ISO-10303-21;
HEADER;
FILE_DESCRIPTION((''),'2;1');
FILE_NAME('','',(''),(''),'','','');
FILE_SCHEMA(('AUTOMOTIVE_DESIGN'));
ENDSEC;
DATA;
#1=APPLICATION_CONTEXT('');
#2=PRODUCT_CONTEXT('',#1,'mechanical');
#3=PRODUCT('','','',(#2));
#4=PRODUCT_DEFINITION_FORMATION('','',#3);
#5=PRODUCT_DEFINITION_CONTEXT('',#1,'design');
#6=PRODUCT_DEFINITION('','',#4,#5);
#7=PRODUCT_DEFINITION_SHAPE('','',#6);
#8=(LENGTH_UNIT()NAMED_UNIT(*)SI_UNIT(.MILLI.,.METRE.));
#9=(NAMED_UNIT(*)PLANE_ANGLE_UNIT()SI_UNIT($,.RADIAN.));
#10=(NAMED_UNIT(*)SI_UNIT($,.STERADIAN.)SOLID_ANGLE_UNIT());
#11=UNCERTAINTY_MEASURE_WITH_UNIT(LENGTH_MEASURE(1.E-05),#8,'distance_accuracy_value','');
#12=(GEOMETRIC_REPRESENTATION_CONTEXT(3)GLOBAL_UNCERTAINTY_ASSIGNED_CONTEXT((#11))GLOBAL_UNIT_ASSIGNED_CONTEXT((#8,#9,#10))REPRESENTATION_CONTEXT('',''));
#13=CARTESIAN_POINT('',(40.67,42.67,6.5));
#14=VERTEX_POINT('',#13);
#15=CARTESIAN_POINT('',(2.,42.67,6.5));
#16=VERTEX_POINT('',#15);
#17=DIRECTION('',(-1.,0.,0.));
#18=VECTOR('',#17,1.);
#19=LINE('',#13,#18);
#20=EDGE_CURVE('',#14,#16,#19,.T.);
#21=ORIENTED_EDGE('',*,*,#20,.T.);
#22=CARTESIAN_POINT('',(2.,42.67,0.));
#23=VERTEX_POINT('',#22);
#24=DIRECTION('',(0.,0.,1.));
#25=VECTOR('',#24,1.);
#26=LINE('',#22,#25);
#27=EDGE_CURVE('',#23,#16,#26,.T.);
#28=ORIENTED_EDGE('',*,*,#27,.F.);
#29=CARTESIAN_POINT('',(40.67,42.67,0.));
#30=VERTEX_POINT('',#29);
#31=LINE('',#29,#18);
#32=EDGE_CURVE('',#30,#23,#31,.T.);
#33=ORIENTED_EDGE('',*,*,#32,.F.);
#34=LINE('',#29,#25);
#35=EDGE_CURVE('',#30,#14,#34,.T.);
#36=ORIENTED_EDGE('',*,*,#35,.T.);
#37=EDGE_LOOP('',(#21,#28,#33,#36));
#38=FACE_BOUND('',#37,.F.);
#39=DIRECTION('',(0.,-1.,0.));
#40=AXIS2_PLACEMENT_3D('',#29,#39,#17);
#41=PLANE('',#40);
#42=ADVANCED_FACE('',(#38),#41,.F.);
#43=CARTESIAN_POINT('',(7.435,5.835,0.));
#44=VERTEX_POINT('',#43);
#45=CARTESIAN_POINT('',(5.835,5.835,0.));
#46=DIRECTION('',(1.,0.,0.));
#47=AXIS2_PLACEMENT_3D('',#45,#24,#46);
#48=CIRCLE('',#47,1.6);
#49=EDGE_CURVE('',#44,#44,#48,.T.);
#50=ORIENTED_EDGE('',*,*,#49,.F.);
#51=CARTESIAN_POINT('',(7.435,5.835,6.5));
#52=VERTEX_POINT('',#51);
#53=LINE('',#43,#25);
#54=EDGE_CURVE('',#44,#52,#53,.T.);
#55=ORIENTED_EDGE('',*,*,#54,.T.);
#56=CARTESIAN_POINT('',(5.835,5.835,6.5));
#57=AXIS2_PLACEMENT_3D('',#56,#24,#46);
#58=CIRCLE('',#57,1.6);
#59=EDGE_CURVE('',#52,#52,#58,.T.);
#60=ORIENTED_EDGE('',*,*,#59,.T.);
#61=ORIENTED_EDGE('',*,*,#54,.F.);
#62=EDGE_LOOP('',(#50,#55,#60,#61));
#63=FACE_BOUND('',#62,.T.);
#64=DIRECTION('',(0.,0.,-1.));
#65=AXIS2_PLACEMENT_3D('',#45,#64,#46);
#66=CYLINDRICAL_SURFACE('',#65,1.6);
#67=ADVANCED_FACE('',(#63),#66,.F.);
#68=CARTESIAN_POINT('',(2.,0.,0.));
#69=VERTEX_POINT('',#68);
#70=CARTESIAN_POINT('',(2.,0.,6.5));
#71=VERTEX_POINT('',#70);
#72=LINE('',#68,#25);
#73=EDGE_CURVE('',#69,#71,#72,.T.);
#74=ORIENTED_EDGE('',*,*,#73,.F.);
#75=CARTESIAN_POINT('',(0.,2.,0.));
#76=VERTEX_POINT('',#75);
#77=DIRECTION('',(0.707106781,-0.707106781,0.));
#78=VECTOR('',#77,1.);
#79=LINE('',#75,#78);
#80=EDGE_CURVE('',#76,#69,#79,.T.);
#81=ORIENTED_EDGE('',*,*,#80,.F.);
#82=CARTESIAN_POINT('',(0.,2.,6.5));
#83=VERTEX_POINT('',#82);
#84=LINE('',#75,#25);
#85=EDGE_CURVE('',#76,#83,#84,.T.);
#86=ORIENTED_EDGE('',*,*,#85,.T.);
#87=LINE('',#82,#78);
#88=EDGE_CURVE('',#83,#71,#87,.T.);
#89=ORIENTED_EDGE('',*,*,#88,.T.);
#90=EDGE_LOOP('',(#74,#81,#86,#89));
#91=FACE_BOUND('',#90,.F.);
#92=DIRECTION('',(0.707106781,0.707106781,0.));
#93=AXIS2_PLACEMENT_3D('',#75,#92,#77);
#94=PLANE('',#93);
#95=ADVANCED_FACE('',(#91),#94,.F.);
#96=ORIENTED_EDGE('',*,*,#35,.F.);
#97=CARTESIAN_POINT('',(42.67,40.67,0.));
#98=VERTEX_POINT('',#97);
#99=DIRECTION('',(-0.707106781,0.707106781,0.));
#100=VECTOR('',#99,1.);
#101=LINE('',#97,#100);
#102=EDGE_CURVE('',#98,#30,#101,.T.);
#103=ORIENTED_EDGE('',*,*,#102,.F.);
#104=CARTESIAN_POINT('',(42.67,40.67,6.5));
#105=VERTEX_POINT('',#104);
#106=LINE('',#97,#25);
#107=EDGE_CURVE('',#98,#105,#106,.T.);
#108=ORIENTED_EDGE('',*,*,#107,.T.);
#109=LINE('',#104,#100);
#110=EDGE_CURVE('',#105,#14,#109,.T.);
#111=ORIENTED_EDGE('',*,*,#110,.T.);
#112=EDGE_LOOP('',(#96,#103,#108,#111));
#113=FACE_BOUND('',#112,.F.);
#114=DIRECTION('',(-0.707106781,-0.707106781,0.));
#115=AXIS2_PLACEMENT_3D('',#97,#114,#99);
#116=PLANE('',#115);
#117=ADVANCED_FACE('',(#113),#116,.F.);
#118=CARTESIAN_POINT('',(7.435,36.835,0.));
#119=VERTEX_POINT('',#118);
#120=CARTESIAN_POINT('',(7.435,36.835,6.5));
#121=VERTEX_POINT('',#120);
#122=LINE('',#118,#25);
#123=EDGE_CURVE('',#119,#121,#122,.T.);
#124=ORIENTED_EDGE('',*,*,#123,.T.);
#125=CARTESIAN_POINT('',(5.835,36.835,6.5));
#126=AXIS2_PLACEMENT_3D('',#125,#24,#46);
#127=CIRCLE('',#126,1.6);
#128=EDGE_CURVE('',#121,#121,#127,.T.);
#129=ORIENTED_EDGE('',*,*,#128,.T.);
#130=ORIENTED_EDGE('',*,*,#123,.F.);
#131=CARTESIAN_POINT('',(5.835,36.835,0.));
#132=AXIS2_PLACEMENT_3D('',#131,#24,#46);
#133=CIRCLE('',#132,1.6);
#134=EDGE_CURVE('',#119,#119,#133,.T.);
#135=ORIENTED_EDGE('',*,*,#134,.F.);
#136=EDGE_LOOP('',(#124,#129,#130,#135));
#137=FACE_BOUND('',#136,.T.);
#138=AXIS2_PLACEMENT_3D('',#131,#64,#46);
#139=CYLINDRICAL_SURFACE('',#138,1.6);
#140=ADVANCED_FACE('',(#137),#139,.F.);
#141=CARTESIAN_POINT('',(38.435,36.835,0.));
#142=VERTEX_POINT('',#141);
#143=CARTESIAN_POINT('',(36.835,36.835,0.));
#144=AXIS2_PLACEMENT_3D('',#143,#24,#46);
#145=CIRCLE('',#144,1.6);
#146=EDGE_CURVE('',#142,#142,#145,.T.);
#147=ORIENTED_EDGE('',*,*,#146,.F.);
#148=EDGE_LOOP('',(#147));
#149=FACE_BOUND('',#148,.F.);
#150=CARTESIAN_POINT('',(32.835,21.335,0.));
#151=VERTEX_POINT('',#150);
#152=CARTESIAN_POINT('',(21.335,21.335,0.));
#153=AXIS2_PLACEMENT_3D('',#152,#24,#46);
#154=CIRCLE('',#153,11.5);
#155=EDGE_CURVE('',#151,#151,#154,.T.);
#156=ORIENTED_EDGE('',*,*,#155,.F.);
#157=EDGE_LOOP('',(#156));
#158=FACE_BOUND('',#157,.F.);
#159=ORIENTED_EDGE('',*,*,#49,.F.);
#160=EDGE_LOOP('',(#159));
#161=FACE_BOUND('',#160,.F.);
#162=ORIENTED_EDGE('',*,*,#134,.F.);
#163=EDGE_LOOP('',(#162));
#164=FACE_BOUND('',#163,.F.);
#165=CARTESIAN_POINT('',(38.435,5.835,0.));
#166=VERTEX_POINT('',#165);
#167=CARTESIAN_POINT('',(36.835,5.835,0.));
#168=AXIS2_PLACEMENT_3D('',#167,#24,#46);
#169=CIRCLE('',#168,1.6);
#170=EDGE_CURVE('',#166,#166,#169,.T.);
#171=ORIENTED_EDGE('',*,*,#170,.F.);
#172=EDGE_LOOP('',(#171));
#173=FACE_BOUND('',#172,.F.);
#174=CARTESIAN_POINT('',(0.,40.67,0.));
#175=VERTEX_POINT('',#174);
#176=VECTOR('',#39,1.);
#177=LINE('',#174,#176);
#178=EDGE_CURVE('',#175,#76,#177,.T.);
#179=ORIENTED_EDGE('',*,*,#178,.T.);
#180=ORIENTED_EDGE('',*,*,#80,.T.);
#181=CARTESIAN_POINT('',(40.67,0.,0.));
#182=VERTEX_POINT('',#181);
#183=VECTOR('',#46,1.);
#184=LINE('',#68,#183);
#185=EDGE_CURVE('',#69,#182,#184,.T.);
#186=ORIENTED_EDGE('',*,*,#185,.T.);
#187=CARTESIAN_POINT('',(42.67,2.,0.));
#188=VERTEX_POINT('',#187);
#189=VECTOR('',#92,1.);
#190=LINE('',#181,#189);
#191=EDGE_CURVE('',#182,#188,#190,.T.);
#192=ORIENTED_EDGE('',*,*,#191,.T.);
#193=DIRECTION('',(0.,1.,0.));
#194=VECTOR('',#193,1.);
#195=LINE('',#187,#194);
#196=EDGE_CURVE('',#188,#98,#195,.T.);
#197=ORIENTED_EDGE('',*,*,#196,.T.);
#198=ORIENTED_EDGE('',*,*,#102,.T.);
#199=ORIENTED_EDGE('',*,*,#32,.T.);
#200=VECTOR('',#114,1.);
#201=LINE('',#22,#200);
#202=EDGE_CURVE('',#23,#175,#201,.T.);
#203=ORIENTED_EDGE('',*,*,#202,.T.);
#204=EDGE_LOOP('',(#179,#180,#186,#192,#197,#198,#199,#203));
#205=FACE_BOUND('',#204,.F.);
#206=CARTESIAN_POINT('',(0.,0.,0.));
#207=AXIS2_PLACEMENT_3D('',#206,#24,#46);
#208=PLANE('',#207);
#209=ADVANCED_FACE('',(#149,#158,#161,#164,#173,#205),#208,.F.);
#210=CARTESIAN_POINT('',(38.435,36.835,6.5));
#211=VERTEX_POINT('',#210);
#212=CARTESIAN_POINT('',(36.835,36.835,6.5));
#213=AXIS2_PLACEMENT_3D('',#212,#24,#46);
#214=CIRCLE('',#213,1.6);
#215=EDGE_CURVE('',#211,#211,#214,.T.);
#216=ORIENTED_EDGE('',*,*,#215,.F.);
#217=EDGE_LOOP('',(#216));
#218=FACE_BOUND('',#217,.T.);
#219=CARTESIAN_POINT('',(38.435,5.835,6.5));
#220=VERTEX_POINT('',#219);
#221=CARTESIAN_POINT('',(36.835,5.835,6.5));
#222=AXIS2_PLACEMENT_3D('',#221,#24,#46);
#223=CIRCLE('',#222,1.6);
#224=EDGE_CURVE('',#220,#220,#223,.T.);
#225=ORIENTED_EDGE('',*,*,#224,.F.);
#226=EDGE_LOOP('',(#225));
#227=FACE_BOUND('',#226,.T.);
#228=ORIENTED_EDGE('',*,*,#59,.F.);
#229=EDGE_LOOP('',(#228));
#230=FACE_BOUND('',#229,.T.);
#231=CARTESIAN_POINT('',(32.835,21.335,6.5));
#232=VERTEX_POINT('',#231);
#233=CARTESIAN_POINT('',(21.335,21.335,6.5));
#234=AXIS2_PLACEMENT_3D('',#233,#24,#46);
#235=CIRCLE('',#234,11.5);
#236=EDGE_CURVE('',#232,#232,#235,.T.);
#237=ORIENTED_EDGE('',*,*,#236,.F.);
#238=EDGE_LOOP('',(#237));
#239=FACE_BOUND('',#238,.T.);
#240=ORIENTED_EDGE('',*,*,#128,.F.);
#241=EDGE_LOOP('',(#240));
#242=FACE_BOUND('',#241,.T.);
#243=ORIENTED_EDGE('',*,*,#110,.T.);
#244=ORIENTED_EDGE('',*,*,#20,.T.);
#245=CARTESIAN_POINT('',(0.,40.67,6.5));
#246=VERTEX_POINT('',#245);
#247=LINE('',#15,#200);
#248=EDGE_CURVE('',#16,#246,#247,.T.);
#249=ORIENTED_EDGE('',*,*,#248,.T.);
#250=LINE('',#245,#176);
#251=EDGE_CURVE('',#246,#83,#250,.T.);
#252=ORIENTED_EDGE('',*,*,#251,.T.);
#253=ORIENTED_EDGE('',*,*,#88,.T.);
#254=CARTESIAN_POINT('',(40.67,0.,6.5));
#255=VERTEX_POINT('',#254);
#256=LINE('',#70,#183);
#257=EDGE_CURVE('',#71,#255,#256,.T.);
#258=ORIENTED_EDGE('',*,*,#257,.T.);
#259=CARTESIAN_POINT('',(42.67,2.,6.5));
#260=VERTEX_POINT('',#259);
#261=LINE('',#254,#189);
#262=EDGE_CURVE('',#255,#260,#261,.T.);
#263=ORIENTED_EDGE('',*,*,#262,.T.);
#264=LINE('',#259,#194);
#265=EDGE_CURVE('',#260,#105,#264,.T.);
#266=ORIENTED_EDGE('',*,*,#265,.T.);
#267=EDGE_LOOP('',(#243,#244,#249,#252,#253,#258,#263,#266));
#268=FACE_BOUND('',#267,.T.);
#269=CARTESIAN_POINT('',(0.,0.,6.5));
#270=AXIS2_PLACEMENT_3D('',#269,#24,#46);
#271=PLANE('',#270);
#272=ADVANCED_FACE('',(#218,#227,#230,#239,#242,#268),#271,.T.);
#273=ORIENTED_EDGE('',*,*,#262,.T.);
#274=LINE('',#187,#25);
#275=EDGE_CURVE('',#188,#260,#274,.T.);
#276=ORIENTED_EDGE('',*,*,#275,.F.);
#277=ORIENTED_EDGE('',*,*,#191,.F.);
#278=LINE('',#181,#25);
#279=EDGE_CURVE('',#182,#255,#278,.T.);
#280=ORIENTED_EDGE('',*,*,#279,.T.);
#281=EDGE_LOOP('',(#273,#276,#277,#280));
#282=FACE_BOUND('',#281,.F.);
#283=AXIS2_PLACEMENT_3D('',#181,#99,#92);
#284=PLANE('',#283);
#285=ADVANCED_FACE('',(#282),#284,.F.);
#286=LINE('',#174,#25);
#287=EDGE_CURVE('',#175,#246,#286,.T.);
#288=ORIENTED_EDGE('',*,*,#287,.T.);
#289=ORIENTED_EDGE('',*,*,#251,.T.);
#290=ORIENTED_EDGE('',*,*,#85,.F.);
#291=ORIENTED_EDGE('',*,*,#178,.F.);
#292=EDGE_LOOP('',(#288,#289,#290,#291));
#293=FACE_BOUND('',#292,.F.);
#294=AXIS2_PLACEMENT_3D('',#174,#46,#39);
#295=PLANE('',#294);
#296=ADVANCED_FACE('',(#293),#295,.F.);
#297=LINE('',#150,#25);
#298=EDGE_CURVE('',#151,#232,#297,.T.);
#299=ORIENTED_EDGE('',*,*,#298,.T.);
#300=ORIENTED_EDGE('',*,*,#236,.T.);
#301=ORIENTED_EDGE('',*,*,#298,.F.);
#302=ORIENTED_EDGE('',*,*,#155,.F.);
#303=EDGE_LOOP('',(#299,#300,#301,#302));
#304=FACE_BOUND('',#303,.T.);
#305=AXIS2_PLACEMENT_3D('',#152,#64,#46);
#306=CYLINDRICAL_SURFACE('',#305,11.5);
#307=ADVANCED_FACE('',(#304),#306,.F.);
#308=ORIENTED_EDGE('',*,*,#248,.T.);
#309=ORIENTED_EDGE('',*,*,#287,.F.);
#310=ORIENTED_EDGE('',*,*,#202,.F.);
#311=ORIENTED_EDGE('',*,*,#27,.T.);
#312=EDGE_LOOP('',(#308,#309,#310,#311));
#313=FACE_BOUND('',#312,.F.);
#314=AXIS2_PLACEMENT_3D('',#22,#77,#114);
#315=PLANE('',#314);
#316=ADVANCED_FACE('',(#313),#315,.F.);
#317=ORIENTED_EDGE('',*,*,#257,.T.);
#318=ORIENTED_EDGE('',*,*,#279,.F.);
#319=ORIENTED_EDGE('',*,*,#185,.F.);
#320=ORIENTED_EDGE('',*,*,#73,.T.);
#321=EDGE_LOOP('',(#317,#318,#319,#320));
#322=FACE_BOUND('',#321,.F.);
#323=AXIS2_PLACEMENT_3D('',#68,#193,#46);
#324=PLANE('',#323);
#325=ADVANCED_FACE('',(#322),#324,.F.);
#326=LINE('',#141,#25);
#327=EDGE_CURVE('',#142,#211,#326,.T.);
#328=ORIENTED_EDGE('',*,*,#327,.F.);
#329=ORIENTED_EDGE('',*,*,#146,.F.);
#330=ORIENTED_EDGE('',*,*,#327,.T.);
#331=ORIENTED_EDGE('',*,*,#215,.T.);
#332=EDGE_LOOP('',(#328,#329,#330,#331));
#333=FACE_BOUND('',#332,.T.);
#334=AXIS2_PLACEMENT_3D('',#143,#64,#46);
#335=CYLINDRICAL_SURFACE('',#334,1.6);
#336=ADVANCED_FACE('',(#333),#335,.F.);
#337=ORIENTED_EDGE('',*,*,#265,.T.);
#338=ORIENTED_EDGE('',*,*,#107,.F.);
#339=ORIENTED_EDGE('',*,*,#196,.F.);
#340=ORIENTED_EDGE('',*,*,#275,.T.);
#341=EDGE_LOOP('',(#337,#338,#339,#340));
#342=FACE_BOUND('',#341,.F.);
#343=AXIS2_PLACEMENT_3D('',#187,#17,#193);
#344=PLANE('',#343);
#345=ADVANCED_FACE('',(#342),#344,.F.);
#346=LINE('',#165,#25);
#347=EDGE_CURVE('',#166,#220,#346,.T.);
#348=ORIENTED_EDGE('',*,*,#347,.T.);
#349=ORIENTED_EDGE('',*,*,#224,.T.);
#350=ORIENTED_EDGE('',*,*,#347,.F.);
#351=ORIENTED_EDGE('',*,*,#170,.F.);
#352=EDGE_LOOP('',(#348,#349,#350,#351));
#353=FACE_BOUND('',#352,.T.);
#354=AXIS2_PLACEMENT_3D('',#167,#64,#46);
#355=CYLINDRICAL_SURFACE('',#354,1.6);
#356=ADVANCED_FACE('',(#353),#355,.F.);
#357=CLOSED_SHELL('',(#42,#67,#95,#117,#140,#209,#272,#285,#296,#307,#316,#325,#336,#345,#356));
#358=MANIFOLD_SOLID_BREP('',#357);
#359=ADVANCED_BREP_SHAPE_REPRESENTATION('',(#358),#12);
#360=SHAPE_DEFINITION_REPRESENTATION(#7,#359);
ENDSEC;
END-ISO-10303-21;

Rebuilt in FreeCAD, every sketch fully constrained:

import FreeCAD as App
import Part
import Sketcher
from FreeCAD import Vector

doc = App.newDocument("Part")
body = doc.addObject("PartDesign::Body", "Body")

sketch1 = body.newObject("Sketcher::SketchObject", "Sketch")
sketch1.AttachmentSupport = (doc.getObject("XY_Plane"), [""])
sketch1.MapMode = "FlatFace"
sketch1.addGeometry([
    Part.LineSegment(Vector(0, 2, 0), Vector(2, 0, 0)),
    Part.LineSegment(Vector(2, 0, 0), Vector(40.7, 0, 0)),
    Part.LineSegment(Vector(40.7, 0, 0), Vector(42.7, 2, 0)),
    Part.LineSegment(Vector(42.7, 2, 0), Vector(42.7, 40.7, 0)),
    Part.LineSegment(Vector(42.7, 40.7, 0), Vector(40.7, 42.7, 0)),
    Part.LineSegment(Vector(40.7, 42.7, 0), Vector(2, 42.7, 0)),
    Part.LineSegment(Vector(2, 42.7, 0), Vector(0, 40.7, 0)),
    Part.LineSegment(Vector(0, 40.7, 0), Vector(0, 2, 0)),
    Part.Circle(Vector(5.8, 5.8, 0), Vector(0, 0, 1), 1.6),
    Part.Circle(Vector(36.8, 5.8, 0), Vector(0, 0, 1), 1.6),
    Part.Circle(Vector(5.8, 36.8, 0), Vector(0, 0, 1), 1.6),
    Part.Circle(Vector(21.3, 21.3, 0), Vector(0, 0, 1), 11.5),
    Part.Circle(Vector(36.8, 36.8, 0), Vector(0, 0, 1), 1.6),
], False)
sketch1.addConstraint([
    Sketcher.Constraint("Coincident", 0, 2, 1, 1),
    Sketcher.Constraint("Coincident", 1, 2, 2, 1),
    Sketcher.Constraint("Coincident", 2, 2, 3, 1),
    Sketcher.Constraint("Coincident", 3, 2, 4, 1),
    Sketcher.Constraint("Coincident", 4, 2, 5, 1),
    Sketcher.Constraint("Coincident", 5, 2, 6, 1),
    Sketcher.Constraint("Coincident", 6, 2, 7, 1),
    Sketcher.Constraint("Coincident", 7, 2, 0, 1),
    Sketcher.Constraint("Horizontal", 1),
    Sketcher.Constraint("Vertical", 3),
    Sketcher.Constraint("Horizontal", 5),
    Sketcher.Constraint("Vertical", 7),
    Sketcher.Constraint("Equal", 8, 9),
    Sketcher.Constraint("Equal", 9, 10),
    Sketcher.Constraint("Equal", 10, 12),
    Sketcher.Constraint("PointOnObject", 0, 2, -1),
    Sketcher.Constraint("PointOnObject", 6, 2, -2),
    Sketcher.Constraint("Perpendicular", 0, 2),
    Sketcher.Constraint("Perpendicular", 2, 4),
    Sketcher.Constraint("Perpendicular", 4, 6),
    Sketcher.Constraint("Horizontal", 8, 3, 9, 3),
    Sketcher.Constraint("Horizontal", 10, 3, 12, 3),
    Sketcher.Constraint("Horizontal", 3, 2, 6, 2),
    Sketcher.Constraint("Horizontal", 2, 2, 7, 2),
    Sketcher.Constraint("Vertical", 8, 3, 10, 3),
    Sketcher.Constraint("Vertical", 9, 3, 12, 3),
    Sketcher.Constraint("Vertical", 1, 2, 4, 2),
    Sketcher.Constraint("Vertical", 0, 2, 5, 2),
    Sketcher.Constraint("Equal", 5, 3),
    Sketcher.Constraint("Diameter", 11, 23.0),
    Sketcher.Constraint("Diameter", 8, 3.2),
    Sketcher.Constraint("DistanceX", -1, 1, 0, 2, 2.0),
    Sketcher.Constraint("DistanceX", 8, 3, 9, 3, 31.0),
    Sketcher.Constraint("DistanceY", 8, 3, 10, 3, 31.0),
    Sketcher.Constraint("DistanceX", -1, 1, 2, 2, 42.67),
    Sketcher.Constraint("DistanceX", 8, 3, 11, 3, 15.5),
    Sketcher.Constraint("DistanceY", 8, 3, 11, 3, 15.5),
    Sketcher.Constraint("DistanceX", -1, 1, 8, 3, 5.835),
    Sketcher.Constraint("DistanceY", -1, 1, 8, 3, 5.835),
])
pad1 = body.newObject("PartDesign::Pad", "Pad")
pad1.Profile = sketch1
pad1.Length = 6.5

doc.recompute()
